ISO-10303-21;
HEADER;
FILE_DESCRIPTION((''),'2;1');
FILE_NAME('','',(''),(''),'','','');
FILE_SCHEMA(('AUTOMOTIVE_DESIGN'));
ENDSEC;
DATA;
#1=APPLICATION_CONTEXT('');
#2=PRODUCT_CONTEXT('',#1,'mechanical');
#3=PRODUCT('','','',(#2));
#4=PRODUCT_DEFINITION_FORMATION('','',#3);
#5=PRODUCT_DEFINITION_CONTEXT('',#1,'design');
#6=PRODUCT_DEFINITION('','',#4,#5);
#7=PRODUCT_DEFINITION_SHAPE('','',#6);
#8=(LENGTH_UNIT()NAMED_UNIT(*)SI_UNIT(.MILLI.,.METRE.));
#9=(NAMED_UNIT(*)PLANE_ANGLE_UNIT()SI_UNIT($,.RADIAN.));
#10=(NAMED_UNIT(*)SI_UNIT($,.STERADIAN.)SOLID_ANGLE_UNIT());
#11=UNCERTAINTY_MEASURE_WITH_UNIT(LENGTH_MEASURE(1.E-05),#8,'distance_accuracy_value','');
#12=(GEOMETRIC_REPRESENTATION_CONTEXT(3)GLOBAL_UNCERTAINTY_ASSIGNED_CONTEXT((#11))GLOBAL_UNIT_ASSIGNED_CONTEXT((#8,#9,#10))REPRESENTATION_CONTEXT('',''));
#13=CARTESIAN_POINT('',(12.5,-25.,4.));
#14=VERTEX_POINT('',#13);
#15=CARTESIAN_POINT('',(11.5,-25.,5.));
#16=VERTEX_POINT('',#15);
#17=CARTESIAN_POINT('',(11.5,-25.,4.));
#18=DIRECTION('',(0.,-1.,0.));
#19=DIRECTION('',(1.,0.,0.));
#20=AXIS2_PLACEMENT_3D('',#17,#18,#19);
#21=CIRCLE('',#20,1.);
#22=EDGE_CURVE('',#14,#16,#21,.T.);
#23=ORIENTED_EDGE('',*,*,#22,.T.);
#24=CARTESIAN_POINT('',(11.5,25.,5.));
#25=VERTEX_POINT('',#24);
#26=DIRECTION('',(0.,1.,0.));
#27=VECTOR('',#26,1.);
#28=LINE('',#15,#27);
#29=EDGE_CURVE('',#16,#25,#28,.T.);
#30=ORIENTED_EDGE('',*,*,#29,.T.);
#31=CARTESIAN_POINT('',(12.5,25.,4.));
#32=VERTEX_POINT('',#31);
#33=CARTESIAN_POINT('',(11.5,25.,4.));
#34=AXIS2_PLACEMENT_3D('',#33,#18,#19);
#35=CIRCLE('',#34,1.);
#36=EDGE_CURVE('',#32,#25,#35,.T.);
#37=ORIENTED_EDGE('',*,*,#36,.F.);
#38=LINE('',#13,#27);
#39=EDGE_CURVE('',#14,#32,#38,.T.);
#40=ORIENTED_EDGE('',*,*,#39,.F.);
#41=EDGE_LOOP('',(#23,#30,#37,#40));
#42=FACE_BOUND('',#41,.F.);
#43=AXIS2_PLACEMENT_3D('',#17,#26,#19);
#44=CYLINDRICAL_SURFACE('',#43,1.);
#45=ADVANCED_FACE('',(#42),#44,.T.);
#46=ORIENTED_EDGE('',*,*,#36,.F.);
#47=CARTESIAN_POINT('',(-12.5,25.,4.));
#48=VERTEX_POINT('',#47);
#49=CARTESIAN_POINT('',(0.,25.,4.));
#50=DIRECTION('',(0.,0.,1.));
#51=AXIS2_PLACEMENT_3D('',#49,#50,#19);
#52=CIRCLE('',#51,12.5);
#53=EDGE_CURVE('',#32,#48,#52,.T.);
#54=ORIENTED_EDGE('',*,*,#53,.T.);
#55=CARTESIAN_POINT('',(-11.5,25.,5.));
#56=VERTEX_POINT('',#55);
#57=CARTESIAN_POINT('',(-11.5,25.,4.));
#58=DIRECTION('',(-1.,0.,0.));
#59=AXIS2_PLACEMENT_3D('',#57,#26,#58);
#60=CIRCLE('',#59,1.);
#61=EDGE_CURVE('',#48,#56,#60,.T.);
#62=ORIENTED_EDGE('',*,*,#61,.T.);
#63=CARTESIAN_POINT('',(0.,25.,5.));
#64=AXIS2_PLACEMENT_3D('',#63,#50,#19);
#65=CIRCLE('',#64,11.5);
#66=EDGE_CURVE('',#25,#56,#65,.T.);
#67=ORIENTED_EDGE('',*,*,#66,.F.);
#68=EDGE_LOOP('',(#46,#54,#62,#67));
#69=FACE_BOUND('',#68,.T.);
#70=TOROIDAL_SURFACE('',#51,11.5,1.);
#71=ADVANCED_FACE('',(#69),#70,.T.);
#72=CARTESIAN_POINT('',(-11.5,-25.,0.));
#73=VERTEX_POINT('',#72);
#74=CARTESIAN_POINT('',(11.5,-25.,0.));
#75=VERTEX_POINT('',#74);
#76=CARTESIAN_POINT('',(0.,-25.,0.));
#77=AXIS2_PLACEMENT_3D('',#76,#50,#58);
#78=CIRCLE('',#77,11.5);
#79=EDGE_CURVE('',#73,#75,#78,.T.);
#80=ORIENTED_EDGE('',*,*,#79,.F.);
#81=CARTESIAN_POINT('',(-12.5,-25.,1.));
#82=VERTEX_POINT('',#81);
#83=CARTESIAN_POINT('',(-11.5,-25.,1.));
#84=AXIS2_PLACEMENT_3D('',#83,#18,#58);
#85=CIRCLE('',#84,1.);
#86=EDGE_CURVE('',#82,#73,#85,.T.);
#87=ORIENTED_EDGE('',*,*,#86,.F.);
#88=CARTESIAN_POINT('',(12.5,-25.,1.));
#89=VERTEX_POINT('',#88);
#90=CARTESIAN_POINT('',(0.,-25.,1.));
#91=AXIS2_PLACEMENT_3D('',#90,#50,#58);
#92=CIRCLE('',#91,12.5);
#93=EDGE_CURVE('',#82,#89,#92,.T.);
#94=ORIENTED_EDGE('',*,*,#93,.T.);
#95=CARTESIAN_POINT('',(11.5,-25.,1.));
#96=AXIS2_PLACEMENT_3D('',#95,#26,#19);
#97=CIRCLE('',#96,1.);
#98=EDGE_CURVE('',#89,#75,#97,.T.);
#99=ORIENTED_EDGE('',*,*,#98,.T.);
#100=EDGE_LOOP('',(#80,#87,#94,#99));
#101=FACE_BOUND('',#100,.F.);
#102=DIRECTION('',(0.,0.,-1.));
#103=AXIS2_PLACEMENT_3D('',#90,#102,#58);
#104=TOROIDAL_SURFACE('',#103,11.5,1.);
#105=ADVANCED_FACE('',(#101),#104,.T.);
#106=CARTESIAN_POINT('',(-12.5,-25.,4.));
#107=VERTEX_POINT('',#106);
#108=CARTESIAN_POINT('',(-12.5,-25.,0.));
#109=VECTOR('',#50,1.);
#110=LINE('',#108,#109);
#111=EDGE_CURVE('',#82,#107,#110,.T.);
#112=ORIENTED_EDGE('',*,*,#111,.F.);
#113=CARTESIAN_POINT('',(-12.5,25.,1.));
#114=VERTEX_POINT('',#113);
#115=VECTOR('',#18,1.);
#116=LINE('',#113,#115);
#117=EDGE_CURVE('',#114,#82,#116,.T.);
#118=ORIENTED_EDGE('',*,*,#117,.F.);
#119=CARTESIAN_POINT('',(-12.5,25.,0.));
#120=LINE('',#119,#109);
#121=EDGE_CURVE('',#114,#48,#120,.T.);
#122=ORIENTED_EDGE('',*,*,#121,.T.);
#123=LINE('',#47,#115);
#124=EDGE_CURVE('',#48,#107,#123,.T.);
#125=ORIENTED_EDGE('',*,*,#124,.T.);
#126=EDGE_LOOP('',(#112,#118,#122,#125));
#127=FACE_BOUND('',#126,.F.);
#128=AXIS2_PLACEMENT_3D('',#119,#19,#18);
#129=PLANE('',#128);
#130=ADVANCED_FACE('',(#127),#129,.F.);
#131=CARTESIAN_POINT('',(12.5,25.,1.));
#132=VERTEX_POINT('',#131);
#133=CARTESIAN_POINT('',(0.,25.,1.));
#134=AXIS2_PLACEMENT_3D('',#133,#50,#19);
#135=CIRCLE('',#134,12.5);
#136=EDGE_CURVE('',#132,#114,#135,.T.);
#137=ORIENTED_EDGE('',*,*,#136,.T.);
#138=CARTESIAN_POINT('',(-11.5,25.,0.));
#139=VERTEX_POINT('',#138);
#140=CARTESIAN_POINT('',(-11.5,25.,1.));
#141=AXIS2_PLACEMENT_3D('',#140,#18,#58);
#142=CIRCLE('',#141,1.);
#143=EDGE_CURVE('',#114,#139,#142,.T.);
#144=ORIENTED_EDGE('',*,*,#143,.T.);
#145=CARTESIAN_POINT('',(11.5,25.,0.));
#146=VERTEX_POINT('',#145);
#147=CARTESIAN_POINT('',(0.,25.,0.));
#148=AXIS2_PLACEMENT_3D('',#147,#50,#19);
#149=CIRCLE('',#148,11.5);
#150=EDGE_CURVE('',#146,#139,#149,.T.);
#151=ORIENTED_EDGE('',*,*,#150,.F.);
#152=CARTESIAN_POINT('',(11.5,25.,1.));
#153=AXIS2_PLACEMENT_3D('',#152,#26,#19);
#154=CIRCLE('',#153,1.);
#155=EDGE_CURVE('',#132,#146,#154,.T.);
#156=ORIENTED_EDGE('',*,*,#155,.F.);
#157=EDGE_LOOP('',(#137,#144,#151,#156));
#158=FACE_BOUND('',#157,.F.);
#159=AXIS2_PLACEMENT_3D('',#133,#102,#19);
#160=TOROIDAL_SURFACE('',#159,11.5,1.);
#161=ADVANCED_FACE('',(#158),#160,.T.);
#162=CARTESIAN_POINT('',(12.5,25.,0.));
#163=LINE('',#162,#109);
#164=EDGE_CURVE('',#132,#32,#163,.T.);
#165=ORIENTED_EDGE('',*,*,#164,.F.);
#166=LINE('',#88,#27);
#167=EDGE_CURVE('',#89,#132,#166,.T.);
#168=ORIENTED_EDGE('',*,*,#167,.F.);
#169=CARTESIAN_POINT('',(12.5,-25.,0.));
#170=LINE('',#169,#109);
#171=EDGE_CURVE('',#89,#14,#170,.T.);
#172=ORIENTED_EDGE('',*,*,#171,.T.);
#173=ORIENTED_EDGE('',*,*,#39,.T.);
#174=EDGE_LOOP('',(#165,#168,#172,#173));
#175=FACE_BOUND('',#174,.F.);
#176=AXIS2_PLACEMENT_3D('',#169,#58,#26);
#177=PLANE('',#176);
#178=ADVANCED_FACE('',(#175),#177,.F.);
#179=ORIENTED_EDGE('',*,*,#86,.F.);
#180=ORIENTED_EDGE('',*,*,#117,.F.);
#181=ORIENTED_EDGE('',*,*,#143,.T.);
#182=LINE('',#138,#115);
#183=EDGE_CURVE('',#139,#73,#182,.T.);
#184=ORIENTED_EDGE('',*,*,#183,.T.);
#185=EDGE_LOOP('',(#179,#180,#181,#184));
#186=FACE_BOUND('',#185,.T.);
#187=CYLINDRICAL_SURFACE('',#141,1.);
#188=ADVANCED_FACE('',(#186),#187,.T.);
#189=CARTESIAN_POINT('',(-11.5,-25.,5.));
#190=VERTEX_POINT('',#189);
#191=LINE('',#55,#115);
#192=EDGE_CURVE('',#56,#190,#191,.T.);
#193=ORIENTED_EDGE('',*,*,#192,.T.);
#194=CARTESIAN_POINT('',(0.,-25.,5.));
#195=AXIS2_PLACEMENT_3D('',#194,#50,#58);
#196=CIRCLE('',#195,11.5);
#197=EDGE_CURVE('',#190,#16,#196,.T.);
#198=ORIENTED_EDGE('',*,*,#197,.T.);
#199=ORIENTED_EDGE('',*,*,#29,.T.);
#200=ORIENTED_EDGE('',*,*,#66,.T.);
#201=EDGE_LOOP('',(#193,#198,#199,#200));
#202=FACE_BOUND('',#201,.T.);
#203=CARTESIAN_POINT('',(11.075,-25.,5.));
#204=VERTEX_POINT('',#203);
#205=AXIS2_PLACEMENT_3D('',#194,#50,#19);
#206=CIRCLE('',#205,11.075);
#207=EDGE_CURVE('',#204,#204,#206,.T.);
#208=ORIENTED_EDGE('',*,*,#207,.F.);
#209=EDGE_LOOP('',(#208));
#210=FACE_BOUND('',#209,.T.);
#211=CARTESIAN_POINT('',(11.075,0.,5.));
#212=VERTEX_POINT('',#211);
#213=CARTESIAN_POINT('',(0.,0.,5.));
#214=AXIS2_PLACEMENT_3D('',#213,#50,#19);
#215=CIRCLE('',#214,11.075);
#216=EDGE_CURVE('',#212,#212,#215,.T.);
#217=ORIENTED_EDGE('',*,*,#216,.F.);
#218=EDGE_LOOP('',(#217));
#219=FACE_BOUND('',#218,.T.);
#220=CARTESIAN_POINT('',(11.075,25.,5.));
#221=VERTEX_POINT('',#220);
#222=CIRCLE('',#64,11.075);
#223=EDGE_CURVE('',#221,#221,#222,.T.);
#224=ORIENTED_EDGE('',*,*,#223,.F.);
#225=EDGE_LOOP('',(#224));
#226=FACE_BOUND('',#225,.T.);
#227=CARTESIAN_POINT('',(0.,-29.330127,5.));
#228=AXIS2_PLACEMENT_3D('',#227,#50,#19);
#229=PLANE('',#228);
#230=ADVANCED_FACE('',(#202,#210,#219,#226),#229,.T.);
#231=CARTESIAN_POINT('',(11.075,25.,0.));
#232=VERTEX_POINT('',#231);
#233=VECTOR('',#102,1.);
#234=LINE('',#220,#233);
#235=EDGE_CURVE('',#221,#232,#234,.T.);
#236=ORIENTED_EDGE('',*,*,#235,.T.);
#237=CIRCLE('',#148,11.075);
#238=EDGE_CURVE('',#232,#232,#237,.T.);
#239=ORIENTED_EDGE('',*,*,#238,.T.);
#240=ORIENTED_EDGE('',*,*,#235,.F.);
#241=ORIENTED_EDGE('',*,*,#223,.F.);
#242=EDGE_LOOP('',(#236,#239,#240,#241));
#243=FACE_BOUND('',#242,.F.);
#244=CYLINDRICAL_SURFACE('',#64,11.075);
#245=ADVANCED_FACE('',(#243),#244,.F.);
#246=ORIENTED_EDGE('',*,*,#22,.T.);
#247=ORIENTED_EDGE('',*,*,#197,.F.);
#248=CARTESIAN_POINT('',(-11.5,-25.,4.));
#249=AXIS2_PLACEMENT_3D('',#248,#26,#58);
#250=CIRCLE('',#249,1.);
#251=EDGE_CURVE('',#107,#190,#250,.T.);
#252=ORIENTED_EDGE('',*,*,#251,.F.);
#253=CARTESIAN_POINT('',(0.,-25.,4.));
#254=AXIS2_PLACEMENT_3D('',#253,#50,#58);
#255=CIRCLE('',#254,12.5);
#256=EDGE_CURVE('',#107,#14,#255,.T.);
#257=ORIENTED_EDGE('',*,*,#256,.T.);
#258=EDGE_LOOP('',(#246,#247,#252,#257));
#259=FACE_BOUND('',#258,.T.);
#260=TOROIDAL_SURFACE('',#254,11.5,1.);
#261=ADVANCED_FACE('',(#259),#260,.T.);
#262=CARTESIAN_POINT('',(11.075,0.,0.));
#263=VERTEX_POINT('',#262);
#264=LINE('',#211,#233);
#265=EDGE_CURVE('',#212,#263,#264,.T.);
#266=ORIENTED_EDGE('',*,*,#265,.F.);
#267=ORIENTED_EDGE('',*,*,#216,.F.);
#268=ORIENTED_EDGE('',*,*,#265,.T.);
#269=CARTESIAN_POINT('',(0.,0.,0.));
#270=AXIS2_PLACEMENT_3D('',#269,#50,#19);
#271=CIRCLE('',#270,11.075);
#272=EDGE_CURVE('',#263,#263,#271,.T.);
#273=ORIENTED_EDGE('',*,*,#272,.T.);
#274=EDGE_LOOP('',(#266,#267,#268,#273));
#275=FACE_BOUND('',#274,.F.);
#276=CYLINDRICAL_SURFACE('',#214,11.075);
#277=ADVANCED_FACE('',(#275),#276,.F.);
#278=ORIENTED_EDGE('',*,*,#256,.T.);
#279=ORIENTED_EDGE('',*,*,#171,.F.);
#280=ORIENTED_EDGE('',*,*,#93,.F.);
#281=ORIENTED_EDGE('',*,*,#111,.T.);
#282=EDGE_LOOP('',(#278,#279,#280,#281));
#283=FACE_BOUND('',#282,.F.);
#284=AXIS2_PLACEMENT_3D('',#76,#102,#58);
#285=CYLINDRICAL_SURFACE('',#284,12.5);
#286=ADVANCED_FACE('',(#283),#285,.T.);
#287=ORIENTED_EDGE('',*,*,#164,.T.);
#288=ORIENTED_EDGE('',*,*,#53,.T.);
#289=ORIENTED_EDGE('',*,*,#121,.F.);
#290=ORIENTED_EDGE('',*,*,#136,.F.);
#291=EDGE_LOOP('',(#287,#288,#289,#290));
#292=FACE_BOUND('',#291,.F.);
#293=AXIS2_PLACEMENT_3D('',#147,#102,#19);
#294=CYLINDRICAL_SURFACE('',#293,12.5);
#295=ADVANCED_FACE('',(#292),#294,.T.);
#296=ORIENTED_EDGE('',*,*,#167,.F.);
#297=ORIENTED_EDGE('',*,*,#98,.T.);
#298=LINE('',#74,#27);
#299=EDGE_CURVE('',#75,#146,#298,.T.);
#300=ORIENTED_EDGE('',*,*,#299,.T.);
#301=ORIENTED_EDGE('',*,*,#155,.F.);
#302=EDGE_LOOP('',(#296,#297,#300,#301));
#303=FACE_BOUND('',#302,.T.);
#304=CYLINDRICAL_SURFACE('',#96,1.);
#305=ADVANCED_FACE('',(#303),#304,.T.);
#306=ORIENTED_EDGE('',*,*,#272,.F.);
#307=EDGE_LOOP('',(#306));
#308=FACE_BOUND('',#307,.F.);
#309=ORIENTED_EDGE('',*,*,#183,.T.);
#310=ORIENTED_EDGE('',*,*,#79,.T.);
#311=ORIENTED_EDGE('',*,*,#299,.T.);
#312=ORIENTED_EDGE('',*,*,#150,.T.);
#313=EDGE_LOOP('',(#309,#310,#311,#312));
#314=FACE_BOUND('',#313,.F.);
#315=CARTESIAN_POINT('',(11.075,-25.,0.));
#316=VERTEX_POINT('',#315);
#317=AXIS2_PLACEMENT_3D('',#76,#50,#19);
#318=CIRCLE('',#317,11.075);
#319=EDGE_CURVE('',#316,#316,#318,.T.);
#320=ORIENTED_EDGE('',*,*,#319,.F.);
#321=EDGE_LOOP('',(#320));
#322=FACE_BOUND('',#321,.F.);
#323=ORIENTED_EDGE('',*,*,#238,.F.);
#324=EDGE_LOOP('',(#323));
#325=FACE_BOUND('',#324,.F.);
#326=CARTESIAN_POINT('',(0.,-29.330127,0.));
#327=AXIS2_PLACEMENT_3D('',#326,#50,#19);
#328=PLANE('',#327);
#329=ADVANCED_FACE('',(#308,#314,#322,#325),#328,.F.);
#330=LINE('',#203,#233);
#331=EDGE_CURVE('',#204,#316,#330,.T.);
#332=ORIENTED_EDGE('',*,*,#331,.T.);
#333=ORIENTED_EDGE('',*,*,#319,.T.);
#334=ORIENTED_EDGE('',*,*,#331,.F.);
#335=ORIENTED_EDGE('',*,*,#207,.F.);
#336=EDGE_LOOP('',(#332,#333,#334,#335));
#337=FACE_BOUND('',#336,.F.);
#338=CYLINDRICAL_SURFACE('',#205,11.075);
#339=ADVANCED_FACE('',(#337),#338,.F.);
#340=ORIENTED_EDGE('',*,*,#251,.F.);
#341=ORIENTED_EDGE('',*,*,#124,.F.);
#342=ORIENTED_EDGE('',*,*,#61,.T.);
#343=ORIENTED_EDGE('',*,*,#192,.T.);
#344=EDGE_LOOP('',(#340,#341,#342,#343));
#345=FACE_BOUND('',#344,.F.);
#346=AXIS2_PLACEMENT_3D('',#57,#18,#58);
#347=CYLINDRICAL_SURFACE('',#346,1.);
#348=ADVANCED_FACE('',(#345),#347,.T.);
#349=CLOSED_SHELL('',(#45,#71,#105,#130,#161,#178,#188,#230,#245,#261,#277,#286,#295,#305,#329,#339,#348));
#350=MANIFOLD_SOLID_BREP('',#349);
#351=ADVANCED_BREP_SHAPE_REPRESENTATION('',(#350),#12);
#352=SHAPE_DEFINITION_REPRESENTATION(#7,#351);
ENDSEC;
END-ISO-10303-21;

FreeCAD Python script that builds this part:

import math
import FreeCAD as App
import Part
import Sketcher

V = App.Vector


def edges_at(feature, points):
    """Names of the edges that pass closest to the given points."""
    edges = feature.Shape.Edges
    near = lambda p: min(range(len(edges)), key=lambda i: edges[i].distToShape(Part.Vertex(*p))[0])
    return sorted({f"Edge{near(p) + 1}" for p in points})

doc = App.newDocument("Part")
params = doc.addObject("Spreadsheet::Sheet", "Params")
for row, (alias, value) in enumerate([
    ("sketch1_radius", "12.5 mm"),
    ("sketch1_height", "50 mm"),
    ("pad1_length", "5 mm"),
    ("sketch2_diameter", "22.15 mm"),
    ("pocket1_length", "25 mm"),
    ("fillet_radius", "1 mm"),
], start=1):
    params.set(f"A{row}", alias)
    params.set(f"B{row}", "=" + value)
    params.setAlias(f"B{row}", alias)

body = doc.addObject("PartDesign::Body", "Body")

# Sketch on XY plane
sketch1 = body.newObject("Sketcher::SketchObject", "Sketch")
sketch1.AttachmentSupport = (doc.getObject("XY_Plane"), [""])
sketch1.MapMode = "FlatFace"
sketch1.addGeometry(Part.ArcOfCircle(Part.Circle(V(0, -25, 0), V(0, 0, 1), 12), math.radians(180), math.radians(360)), False)
sketch1.addGeometry(Part.LineSegment(V(12, -25, 0), V(12, 25, 0)), False)
sketch1.addGeometry(Part.ArcOfCircle(Part.Circle(V(0, 25, 0), V(0, 0, 1), 12), math.radians(0), math.radians(180)), False)
sketch1.addGeometry(Part.LineSegment(V(-12, 25, 0), V(-12, -25, 0)), False)
sketch1.addConstraint(Sketcher.Constraint("Tangent", 0, 2, 1, 1))
sketch1.addConstraint(Sketcher.Constraint("Tangent", 1, 2, 2, 1))
sketch1.addConstraint(Sketcher.Constraint("Tangent", 2, 2, 3, 1))
sketch1.addConstraint(Sketcher.Constraint("Tangent", 3, 2, 0, 1))
sketch1.addConstraint(Sketcher.Constraint("Vertical", 1))
sketch1.addConstraint(Sketcher.Constraint("Vertical", 3))
sketch1.addConstraint(Sketcher.Constraint("Symmetric", 0, 3, 2, 3, -1, 1))
sketch1.addConstraint(Sketcher.Constraint("Radius", 0, 12.5))
sketch1.addConstraint(Sketcher.Constraint("DistanceY", 1, 1, 1, 2, 50.0))
sketch1.setExpression("Constraints[7]", "Params.sketch1_radius")
sketch1.setExpression("Constraints[8]", "Params.sketch1_height")
pad1 = body.newObject("PartDesign::Pad", "Pad")
pad1.Profile = sketch1
pad1.setExpression("Length", "Params.pad1_length")

# Sketch on XY plane
sketch2 = body.newObject("Sketcher::SketchObject", "Sketch001")
sketch2.AttachmentSupport = (doc.getObject("XY_Plane"), [""])
sketch2.MapMode = "FlatFace"
sketch2.AttachmentOffset = App.Placement(V(0, 0, 5), App.Rotation())
sketch2.addGeometry(Part.Circle(V(0, 25, 0), V(0, 0, 1), 11), False)
sketch2.addGeometry(Part.Circle(V(0, 0, 0), V(0, 0, 1), 11), False)
sketch2.addGeometry(Part.Circle(V(0, -25, 0), V(0, 0, 1), 11), False)
sketch2.addConstraint(Sketcher.Constraint("Coincident", 1, 3, -1, 1))
sketch2.addConstraint(Sketcher.Constraint("Equal", 0, 1))
sketch2.addConstraint(Sketcher.Constraint("Equal", 1, 2))
sketch2.addConstraint(Sketcher.Constraint("Symmetric", 0, 3, 2, 3, -1, 1))
sketch2.addConstraint(Sketcher.Constraint("PointOnObject", 0, 3, -2))
sketch2.addConstraint(Sketcher.Constraint("Diameter", 0, 22.15))
sketch2.addConstraint(Sketcher.Constraint("DistanceY", -1, 1, 0, 3, 25.0))
sketch2.setExpression("Constraints[5]", "Params.sketch2_diameter")
pocket1 = body.newObject("PartDesign::Pocket", "Pocket")
pocket1.Profile = sketch2
pocket1.setExpression("Length", "Params.pocket1_length")
doc.recompute()

fillet = body.newObject("PartDesign::Fillet", "Fillet")
fillet.Base = (pocket1, edges_at(pocket1, [
    (12.5, 0, 5),
    (0, 37.5, 5),
    (-12.5, 0, 5),
    (-12.5, -25, 2.5),
    (-12.5, 0, 0),
    (-12.5, 25, 2.5),
    (12.5, 0, 0),
]))
fillet.setExpression("Radius", "Params.fillet_radius")

doc.recompute()
